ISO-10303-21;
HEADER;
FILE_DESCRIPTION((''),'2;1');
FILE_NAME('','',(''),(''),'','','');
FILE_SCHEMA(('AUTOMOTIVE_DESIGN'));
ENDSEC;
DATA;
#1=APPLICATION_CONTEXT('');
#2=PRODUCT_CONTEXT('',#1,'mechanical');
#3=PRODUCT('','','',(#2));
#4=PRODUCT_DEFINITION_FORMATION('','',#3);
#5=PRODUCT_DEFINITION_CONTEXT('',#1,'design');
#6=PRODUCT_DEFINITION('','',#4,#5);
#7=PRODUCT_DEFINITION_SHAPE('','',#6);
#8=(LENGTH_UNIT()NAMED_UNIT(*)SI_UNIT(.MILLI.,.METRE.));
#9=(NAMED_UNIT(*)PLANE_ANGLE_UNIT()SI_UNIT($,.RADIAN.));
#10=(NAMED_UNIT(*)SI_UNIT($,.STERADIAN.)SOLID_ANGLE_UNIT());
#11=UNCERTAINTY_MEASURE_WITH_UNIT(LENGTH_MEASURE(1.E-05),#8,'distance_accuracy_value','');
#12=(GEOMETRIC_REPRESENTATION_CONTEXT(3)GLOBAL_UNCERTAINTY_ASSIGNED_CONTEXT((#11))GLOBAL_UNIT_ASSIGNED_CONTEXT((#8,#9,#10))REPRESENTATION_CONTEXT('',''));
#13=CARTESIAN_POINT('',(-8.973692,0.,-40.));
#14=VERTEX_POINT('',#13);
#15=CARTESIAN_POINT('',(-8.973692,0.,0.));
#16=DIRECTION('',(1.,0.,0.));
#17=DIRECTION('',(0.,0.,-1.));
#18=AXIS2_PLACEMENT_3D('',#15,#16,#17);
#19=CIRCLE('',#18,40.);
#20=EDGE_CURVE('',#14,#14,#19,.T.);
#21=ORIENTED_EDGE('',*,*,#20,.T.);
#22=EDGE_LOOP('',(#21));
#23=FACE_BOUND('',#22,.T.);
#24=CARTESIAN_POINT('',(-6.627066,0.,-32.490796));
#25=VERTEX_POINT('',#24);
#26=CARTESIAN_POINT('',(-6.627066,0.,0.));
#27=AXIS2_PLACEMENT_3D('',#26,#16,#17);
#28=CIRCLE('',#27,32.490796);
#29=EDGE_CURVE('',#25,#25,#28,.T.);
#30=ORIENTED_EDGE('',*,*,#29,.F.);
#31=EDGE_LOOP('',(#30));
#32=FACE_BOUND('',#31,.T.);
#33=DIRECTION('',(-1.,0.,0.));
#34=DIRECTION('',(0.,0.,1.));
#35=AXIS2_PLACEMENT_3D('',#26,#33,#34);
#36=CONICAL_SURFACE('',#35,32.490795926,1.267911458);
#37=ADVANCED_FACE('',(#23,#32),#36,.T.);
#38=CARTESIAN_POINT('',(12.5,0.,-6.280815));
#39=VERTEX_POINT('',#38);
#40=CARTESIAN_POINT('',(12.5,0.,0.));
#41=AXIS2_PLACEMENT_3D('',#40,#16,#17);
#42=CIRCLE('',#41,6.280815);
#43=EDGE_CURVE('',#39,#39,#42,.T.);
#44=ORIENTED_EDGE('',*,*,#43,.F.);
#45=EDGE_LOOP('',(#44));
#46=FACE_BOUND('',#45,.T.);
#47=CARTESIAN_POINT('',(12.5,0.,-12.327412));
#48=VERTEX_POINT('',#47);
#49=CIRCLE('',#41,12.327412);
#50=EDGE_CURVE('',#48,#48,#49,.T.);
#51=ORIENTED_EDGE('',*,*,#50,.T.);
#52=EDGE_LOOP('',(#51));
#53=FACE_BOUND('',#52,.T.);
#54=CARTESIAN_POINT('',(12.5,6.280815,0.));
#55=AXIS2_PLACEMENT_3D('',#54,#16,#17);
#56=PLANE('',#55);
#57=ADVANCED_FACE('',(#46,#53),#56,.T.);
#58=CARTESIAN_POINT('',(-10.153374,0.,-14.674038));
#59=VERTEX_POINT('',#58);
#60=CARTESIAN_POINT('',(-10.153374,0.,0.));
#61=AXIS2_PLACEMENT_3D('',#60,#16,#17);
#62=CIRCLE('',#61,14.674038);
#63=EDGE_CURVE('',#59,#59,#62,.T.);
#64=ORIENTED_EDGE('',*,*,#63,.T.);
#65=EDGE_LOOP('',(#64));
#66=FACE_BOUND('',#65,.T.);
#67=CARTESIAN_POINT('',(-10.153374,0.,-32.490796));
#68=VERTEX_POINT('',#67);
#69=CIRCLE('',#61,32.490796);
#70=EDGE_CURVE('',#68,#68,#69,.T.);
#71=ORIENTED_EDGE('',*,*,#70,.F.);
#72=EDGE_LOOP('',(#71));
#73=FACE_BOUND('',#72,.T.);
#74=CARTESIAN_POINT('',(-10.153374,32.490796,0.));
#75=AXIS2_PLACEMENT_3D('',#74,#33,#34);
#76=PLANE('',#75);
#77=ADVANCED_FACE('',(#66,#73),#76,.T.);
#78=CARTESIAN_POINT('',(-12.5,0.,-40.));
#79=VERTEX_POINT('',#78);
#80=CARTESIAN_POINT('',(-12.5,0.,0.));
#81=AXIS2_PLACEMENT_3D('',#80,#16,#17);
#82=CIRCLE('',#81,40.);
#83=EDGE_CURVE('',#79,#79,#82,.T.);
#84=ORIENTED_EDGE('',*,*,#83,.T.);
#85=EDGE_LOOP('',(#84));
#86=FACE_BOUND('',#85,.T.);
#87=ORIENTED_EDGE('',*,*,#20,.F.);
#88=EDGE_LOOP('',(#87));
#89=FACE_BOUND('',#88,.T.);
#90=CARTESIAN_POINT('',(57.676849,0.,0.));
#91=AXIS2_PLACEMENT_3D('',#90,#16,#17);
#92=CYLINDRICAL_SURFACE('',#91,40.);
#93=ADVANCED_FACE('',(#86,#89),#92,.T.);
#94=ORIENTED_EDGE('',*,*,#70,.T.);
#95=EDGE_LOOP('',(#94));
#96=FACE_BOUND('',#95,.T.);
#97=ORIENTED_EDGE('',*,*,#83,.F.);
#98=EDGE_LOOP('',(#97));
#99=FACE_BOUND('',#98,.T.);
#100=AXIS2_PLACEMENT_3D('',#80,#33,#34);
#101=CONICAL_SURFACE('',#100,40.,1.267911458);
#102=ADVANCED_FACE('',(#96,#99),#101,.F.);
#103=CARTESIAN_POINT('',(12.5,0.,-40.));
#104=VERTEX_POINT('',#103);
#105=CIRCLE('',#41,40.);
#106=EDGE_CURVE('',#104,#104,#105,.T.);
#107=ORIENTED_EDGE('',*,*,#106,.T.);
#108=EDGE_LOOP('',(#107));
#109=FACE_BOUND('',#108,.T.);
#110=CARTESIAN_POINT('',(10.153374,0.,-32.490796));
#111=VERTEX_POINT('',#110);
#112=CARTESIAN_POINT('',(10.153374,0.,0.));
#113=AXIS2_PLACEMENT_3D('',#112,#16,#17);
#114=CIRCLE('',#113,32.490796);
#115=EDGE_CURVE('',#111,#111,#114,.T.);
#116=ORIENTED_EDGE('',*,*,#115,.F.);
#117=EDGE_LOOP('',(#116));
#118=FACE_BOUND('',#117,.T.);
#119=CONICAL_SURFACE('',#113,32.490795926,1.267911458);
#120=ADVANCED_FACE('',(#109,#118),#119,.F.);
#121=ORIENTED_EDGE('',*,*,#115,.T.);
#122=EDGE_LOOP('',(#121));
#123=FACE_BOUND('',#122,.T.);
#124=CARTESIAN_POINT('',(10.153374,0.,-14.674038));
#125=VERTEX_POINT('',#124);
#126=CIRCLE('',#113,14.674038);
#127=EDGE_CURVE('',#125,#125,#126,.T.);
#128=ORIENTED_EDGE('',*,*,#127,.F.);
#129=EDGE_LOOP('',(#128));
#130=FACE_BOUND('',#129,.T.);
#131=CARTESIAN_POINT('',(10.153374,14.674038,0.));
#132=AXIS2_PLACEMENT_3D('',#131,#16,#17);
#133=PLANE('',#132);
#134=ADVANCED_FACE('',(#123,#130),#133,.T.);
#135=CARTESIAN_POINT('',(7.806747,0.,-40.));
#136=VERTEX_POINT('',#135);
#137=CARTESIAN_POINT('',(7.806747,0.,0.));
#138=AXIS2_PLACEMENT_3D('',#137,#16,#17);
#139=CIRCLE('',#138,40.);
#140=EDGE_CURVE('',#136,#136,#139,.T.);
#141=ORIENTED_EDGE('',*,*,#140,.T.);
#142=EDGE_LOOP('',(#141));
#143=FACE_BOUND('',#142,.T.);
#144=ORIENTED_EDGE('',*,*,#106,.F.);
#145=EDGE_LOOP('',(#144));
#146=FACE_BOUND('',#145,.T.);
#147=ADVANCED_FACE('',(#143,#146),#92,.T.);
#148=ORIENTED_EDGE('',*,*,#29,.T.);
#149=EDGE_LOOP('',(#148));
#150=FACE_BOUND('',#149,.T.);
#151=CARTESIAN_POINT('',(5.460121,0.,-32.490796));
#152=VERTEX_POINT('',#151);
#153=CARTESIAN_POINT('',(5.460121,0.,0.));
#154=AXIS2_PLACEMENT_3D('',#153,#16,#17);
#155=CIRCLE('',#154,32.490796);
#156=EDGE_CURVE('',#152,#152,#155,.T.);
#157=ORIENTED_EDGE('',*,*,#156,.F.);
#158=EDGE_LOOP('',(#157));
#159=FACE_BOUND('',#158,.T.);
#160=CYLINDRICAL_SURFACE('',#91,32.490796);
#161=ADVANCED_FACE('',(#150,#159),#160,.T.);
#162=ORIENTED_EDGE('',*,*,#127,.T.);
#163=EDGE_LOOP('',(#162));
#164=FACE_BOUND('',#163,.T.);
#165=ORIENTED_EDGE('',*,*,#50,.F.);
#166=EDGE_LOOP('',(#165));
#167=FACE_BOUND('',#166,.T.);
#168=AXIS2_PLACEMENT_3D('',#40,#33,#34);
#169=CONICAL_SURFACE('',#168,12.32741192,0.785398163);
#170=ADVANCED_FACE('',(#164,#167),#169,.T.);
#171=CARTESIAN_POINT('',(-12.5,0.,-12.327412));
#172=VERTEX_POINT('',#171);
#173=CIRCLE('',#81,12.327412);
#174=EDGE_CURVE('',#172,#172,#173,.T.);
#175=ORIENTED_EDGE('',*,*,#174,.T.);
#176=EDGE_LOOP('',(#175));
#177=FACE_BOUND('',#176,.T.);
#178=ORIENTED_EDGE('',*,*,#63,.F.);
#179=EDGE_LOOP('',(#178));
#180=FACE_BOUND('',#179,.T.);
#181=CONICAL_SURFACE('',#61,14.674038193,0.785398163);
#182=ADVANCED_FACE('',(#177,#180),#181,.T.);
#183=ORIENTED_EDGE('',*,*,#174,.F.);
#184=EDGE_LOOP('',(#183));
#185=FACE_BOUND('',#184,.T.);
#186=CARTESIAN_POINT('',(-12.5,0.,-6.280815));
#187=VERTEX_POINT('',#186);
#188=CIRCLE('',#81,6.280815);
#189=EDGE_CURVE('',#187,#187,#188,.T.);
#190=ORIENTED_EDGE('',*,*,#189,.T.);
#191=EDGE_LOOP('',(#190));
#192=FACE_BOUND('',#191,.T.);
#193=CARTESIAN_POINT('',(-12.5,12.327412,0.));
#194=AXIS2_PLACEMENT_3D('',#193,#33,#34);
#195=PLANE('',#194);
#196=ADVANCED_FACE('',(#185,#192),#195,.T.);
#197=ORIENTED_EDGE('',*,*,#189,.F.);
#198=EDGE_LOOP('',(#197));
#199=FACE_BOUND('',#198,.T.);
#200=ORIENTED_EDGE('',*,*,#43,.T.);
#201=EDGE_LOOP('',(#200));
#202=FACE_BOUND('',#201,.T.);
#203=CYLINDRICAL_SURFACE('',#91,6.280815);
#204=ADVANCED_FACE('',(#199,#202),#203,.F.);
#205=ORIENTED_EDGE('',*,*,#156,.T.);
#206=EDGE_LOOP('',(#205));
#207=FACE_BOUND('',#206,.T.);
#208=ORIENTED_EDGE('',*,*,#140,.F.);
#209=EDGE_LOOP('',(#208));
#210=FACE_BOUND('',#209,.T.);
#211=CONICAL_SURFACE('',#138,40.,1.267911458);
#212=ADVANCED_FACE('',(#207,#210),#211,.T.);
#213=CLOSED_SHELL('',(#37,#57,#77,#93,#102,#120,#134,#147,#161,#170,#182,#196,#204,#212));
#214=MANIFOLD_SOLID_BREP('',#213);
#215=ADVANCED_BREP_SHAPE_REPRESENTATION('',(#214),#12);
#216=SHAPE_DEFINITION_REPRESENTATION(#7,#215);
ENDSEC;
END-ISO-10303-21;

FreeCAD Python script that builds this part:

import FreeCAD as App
import Part
import Sketcher

V = App.Vector
Q = App.Units.Quantity


def add_polygon(sketch, points):
    """Adds a closed chain of lines whose ends are joined by coincident constraints."""
    first, n = sketch.GeometryCount, len(points)
    for a, b in zip(points, points[1:] + points[:1]):
        sketch.addGeometry(Part.LineSegment(App.Vector(*a, 0), App.Vector(*b, 0)), False)
    for i in range(n):
        sketch.addConstraint(Sketcher.Constraint("Coincident", first + i, 2, first + (i + 1) % n, 1))

doc = App.newDocument("Part")
body = doc.addObject("PartDesign::Body", "Body")

sketch1 = doc.addObject("Sketcher::SketchObject", "Sketch")
body.addObject(sketch1)
sketch1.AttachmentSupport = (doc.XY_Plane, [""])
sketch1.MapMode = "FlatFace"
add_polygon(sketch1, [(-12.5, 6.3), (12.5, 6.3), (12.5, 12.3), (10.2, 14.7), (10.2, 32.5), (12.5, 40), (7.8, 40), (5.5, 32.5), (-6.6, 32.5), (-9, 40), (-12.5, 40), (-10.2, 32.5), (-10.2, 14.7), (-12.5, 12.3)])
sketch1.addConstraint([
    Sketcher.Constraint("Horizontal", 0),
    Sketcher.Constraint("Vertical", 1),
    Sketcher.Constraint("Vertical", 3),
    Sketcher.Constraint("Horizontal", 5),
    Sketcher.Constraint("Horizontal", 7),
    Sketcher.Constraint("Horizontal", 9),
    Sketcher.Constraint("Vertical", 11),
    Sketcher.Constraint("Vertical", 13),
    Sketcher.Constraint("Symmetric", 4, 2, 9, 2, -2),
    Sketcher.Constraint("Symmetric", 3, 2, 10, 2, -2),
    Sketcher.Constraint("Symmetric", 1, 2, 12, 2, -2),
    Sketcher.Constraint("Parallel", 4, 6),
    Sketcher.Constraint("Parallel", 8, 10),
    Sketcher.Constraint("Perpendicular", 2, 12),
    Sketcher.Constraint("Horizontal", 3, 2, 6, 2),
    Sketcher.Constraint("Horizontal", 2, 2, 11, 2),
    Sketcher.Constraint("Vertical", 1, 2, 4, 2),
    Sketcher.Constraint("DistanceX", 0, 1, 0, 2, Q("25 mm")),
    Sketcher.Constraint("DistanceY", -1, 1, 4, 2, Q("40 mm")),
    Sketcher.Constraint("DistanceX", 9, 2, 9, 1, Q("3.526308 mm")),
    Sketcher.Constraint("Distance", 2, Q("3.318631 mm")),
    Sketcher.Constraint("DistanceX", 5, 2, 5, 1, Q("4.693253 mm")),
    Sketcher.Constraint("DistanceY", 1, 1, 1, 2, Q("6.046597 mm")),
    Sketcher.Constraint("DistanceY", 3, 1, 3, 2, Q("17.816758 mm")),
    Sketcher.Constraint("DistanceY", -1, 1, 1, 2, Q("12.327412 mm")),
])
revolution = doc.addObject("PartDesign::Revolution", "Revolution")
body.addObject(revolution)
revolution.Profile = sketch1
revolution.ReferenceAxis = (sketch1, ["H_Axis"])
revolution.Angle = 360

doc.recompute()
